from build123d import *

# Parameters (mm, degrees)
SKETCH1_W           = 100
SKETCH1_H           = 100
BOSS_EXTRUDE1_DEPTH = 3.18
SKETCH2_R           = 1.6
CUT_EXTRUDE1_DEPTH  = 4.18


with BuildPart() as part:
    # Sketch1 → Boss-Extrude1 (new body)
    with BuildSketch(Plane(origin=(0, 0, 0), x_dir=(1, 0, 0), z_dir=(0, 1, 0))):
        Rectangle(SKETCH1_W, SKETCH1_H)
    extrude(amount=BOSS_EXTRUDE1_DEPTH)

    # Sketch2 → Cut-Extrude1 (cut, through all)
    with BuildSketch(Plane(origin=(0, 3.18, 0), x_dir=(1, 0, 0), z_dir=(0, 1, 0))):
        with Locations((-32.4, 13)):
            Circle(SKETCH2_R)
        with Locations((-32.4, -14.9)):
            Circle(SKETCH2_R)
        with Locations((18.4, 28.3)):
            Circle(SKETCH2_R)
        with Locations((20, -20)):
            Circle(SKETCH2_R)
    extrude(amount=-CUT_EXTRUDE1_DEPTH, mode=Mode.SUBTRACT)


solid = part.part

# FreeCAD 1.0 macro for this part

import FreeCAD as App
import Part
import Sketcher


def add_polygon(sketch, points):
    """Adds a closed chain of lines whose ends are joined by coincident constraints."""
    first, n = sketch.GeometryCount, len(points)
    for a, b in zip(points, points[1:] + points[:1]):
        sketch.addGeometry(Part.LineSegment(App.Vector(*a, 0), App.Vector(*b, 0)), False)
    for i in range(n):
        sketch.addConstraint(Sketcher.Constraint("Coincident", first + i, 2, first + (i + 1) % n, 1))

doc = App.newDocument("Part")
body = doc.addObject("PartDesign::Body", "Body")

sketch1 = body.newObject("Sketcher::SketchObject", "Sketch")
sketch1.AttachmentSupport = (doc.getObject("XZ_Plane"), [""])
sketch1.MapMode = "FlatFace"
add_polygon(sketch1, [(-50, -50), (-50, 50), (50, 50), (50, -50)])
sketch1.addConstraint(Sketcher.Constraint("Vertical", 0))
sketch1.addConstraint(Sketcher.Constraint("Horizontal", 1))
sketch1.addConstraint(Sketcher.Constraint("Vertical", 2))
sketch1.addConstraint(Sketcher.Constraint("Horizontal", 3))
sketch1.addConstraint(Sketcher.Constraint("Symmetric", 0, 2, 2, 2, -1, 1))
sketch1.addConstraint(Sketcher.Constraint("Equal", 3, 0))
sketch1.addConstraint(Sketcher.Constraint("DistanceX", 1, 1, 1, 2, 100.0))
pad1 = body.newObject("PartDesign::Pad", "Pad")
pad1.Profile = sketch1
pad1.Length = 3.18
pad1.Reversed = True

sketch2 = body.newObject("Sketcher::SketchObject", "Sketch001")
sketch2.AttachmentSupport = (doc.getObject("XZ_Plane"), [""])
sketch2.MapMode = "FlatFace"
sketch2.AttachmentOffset = App.Placement(App.Vector(0, 0, -3.18), App.Rotation())
sketch2.addGeometry(Part.Circle(App.Vector(-32.4, -13, 0), App.Vector(0, 0, 1), 1.6), False)
sketch2.addGeometry(Part.Circle(App.Vector(-32.4, 14.9, 0), App.Vector(0, 0, 1), 1.6), False)
sketch2.addGeometry(Part.Circle(App.Vector(18.4, -28.3, 0), App.Vector(0, 0, 1), 1.6), False)
sketch2.addGeometry(Part.Circle(App.Vector(20, 20, 0), App.Vector(0, 0, 1), 1.6), False)
sketch2.addConstraint(Sketcher.Constraint("Equal", 0, 1))
sketch2.addConstraint(Sketcher.Constraint("Equal", 1, 2))
sketch2.addConstraint(Sketcher.Constraint("Equal", 2, 3))
sketch2.addConstraint(Sketcher.Constraint("Vertical", 0, 3, 1, 3))
sketch2.addConstraint(Sketcher.Constraint("Diameter", 0, 3.2))
sketch2.addConstraint(Sketcher.Constraint("DistanceY", 0, 3, -1, 1, 13.0))
sketch2.addConstraint(Sketcher.Constraint("DistanceX", -1, 1, 3, 3, 20.0))
sketch2.addConstraint(Sketcher.Constraint("DistanceY", -1, 1, 3, 3, 20.0))
sketch2.addConstraint(Sketcher.Constraint("DistanceX", 0, 3, -1, 1, 32.4))
sketch2.addConstraint(Sketcher.Constraint("DistanceY", -1, 1, 1, 3, 14.9))
sketch2.addConstraint(Sketcher.Constraint("DistanceX", -1, 1, 2, 3, 18.4))
sketch2.addConstraint(Sketcher.Constraint("DistanceY", 2, 3, -1, 1, 28.3))
pocket1 = body.newObject("PartDesign::Pocket", "Pocket")
pocket1.Profile = sketch2
pocket1.Type = "ThroughAll"
pocket1.Reversed = True

doc.recompute()
